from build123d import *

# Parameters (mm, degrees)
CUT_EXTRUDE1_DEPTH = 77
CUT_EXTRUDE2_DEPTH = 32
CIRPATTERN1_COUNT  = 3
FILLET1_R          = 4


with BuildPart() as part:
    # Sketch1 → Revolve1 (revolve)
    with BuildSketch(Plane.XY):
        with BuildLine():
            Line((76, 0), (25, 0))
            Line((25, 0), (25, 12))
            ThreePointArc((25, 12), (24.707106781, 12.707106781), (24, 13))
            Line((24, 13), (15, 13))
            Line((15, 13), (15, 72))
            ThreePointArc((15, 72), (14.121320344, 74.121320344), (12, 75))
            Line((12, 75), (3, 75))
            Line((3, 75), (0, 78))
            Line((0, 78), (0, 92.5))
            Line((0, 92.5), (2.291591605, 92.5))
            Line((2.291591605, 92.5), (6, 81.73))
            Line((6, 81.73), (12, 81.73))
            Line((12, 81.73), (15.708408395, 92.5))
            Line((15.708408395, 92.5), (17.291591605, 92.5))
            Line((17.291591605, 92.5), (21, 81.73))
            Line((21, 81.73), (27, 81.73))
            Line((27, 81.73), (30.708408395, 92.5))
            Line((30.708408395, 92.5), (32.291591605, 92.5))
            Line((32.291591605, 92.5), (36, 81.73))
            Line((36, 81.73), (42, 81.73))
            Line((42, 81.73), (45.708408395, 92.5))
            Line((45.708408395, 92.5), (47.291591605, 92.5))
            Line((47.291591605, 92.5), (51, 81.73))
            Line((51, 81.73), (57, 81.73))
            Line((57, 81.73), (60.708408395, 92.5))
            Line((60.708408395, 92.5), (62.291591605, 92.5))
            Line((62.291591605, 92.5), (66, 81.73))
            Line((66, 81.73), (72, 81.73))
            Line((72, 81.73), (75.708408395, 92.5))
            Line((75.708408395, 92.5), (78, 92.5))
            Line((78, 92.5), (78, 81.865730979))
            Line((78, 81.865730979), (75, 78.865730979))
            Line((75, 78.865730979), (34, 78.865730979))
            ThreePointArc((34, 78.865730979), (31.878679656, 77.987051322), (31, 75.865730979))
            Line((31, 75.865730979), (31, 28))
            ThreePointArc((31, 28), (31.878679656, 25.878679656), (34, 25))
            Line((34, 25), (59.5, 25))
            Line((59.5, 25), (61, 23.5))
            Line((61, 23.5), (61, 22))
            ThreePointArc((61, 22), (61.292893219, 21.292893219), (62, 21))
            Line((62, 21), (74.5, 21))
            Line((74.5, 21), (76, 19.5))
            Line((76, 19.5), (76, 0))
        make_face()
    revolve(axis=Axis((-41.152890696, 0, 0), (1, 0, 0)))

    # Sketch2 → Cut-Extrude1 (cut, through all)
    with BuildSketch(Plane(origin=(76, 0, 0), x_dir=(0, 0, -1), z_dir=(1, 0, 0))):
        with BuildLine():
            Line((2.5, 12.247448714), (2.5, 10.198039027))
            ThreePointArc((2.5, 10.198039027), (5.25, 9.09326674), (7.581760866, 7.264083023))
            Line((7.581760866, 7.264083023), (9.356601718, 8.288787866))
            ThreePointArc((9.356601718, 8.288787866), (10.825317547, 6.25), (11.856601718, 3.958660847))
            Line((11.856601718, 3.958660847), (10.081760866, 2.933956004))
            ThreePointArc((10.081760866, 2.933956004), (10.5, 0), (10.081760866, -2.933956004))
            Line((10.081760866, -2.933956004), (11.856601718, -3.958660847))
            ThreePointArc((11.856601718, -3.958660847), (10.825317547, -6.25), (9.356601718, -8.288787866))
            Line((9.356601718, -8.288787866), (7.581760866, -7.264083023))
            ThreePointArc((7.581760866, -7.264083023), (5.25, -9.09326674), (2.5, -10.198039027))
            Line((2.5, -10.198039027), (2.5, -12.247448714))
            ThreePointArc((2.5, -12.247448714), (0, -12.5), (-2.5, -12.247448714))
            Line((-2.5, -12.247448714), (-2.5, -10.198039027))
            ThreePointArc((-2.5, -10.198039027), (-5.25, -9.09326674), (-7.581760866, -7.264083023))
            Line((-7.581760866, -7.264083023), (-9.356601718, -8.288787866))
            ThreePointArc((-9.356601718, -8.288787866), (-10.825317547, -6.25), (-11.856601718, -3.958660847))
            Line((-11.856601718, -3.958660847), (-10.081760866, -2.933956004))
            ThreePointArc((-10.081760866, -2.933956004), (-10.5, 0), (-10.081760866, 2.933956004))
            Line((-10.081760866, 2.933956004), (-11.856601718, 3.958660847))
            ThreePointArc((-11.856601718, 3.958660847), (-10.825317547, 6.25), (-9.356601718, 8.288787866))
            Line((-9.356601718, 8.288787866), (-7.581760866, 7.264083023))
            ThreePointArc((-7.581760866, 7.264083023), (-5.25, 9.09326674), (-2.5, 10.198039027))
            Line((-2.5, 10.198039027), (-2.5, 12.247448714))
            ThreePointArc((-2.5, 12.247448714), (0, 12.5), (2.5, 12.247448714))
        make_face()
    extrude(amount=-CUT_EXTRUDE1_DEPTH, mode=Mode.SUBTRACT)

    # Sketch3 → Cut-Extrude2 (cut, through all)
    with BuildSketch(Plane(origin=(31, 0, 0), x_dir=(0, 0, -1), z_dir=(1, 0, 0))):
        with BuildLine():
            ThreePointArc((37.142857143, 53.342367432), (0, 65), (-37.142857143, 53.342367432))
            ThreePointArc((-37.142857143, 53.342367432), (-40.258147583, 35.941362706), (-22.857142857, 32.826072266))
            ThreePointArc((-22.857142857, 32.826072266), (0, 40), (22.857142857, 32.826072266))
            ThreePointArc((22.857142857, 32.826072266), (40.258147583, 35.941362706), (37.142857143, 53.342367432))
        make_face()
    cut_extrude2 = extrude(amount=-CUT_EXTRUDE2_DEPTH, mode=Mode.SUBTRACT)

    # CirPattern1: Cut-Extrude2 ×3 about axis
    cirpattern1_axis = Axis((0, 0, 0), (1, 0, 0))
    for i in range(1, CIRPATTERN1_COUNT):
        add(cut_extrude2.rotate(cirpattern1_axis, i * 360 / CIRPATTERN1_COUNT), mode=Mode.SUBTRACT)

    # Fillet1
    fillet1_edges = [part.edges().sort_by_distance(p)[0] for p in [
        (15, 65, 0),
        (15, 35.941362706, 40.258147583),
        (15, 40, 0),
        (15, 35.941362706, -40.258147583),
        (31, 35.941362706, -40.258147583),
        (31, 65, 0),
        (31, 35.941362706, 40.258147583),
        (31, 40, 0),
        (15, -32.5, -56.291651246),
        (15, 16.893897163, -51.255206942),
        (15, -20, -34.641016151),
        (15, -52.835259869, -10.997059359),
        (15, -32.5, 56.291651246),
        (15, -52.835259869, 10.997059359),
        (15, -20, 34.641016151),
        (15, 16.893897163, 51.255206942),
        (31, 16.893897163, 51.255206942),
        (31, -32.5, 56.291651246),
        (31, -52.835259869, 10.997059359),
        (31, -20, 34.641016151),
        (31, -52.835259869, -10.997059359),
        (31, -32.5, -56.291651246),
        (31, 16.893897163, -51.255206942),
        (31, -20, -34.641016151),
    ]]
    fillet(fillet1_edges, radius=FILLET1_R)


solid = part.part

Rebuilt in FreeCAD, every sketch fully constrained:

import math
import FreeCAD as App
import Part
import Sketcher
from FreeCAD import Vector
Q = App.Units.Quantity


def edges_at(feature, points):
    """Names of the edges that pass closest to the given points."""
    edges = feature.Shape.Edges
    near = lambda p: min(range(len(edges)), key=lambda i: edges[i].distToShape(Part.Vertex(*p))[0])
    return sorted({f"Edge{near(p) + 1}" for p in points})

doc = App.newDocument("Part")
body = doc.addObject("PartDesign::Body", "Body")

# Sketch on XY plane
sketch1 = doc.addObject("Sketcher::SketchObject", "Sketch")
body.addObject(sketch1)
sketch1.AttachmentSupport = (doc.XY_Plane, [""])
sketch1.MapMode = "FlatFace"
sketch1.addGeometry(Part.LineSegment(Vector(25, 0, 0), Vector(76, 0, 0)), False)
sketch1.addGeometry(Part.LineSegment(Vector(76, 0, 0), Vector(76, 19.5, 0)), False)
sketch1.addGeometry(Part.LineSegment(Vector(76, 19.5, 0), Vector(74.5, 21, 0)), False)
sketch1.addGeometry(Part.LineSegment(Vector(74.5, 21, 0), Vector(62, 21, 0)), False)
sketch1.addGeometry(Part.ArcOfCircle(Part.Circle(Vector(62, 22, 0), Vector(0, 0, 1), 1), math.radians(-180), math.radians(-90)), False)
sketch1.addGeometry(Part.LineSegment(Vector(61, 22, 0), Vector(61, 23.5, 0)), False)
sketch1.addGeometry(Part.LineSegment(Vector(61, 23.5, 0), Vector(59.5, 25, 0)), False)
sketch1.addGeometry(Part.LineSegment(Vector(59.5, 25, 0), Vector(34, 25, 0)), False)
sketch1.addGeometry(Part.ArcOfCircle(Part.Circle(Vector(34, 28, 0), Vector(0, 0, 1), 3), math.radians(180), math.radians(270)), False)
sketch1.addGeometry(Part.LineSegment(Vector(31, 28, 0), Vector(31, 75.9, 0)), False)
sketch1.addGeometry(Part.ArcOfCircle(Part.Circle(Vector(34, 75.9, 0), Vector(0, 0, 1), 3), math.radians(90), math.radians(180)), False)
sketch1.addGeometry(Part.LineSegment(Vector(34, 78.9, 0), Vector(75, 78.9, 0)), False)
sketch1.addGeometry(Part.LineSegment(Vector(75, 78.9, 0), Vector(78, 81.9, 0)), False)
sketch1.addGeometry(Part.LineSegment(Vector(78, 81.9, 0), Vector(78, 92.5, 0)), False)
sketch1.addGeometry(Part.LineSegment(Vector(78, 92.5, 0), Vector(75.7, 92.5, 0)), False)
sketch1.addGeometry(Part.LineSegment(Vector(75.7, 92.5, 0), Vector(72, 81.7, 0)), False)
sketch1.addGeometry(Part.LineSegment(Vector(72, 81.7, 0), Vector(66, 81.7, 0)), False)
sketch1.addGeometry(Part.LineSegment(Vector(66, 81.7, 0), Vector(62.3, 92.5, 0)), False)
sketch1.addGeometry(Part.LineSegment(Vector(62.3, 92.5, 0), Vector(60.7, 92.5, 0)), False)
sketch1.addGeometry(Part.LineSegment(Vector(60.7, 92.5, 0), Vector(57, 81.7, 0)), False)
sketch1.addGeometry(Part.LineSegment(Vector(57, 81.7, 0), Vector(51, 81.7, 0)), False)
sketch1.addGeometry(Part.LineSegment(Vector(51, 81.7, 0), Vector(47.3, 92.5, 0)), False)
sketch1.addGeometry(Part.LineSegment(Vector(47.3, 92.5, 0), Vector(45.7, 92.5, 0)), False)
sketch1.addGeometry(Part.LineSegment(Vector(45.7, 92.5, 0), Vector(42, 81.7, 0)), False)
sketch1.addGeometry(Part.LineSegment(Vector(42, 81.7, 0), Vector(36, 81.7, 0)), False)
sketch1.addGeometry(Part.LineSegment(Vector(36, 81.7, 0), Vector(32.3, 92.5, 0)), False)
sketch1.addGeometry(Part.LineSegment(Vector(32.3, 92.5, 0), Vector(30.7, 92.5, 0)), False)
sketch1.addGeometry(Part.LineSegment(Vector(30.7, 92.5, 0), Vector(27, 81.7, 0)), False)
sketch1.addGeometry(Part.LineSegment(Vector(27, 81.7, 0), Vector(21, 81.7, 0)), False)
sketch1.addGeometry(Part.LineSegment(Vector(21, 81.7, 0), Vector(17.3, 92.5, 0)), False)
sketch1.addGeometry(Part.LineSegment(Vector(17.3, 92.5, 0), Vector(15.7, 92.5, 0)), False)
sketch1.addGeometry(Part.LineSegment(Vector(15.7, 92.5, 0), Vector(12, 81.7, 0)), False)
sketch1.addGeometry(Part.LineSegment(Vector(12, 81.7, 0), Vector(6, 81.7, 0)), False)
sketch1.addGeometry(Part.LineSegment(Vector(6, 81.7, 0), Vector(2.3, 92.5, 0)), False)
sketch1.addGeometry(Part.LineSegment(Vector(2.3, 92.5, 0), Vector(0, 92.5, 0)), False)
sketch1.addGeometry(Part.LineSegment(Vector(0, 92.5, 0), Vector(0, 78, 0)), False)
sketch1.addGeometry(Part.LineSegment(Vector(0, 78, 0), Vector(3, 75, 0)), False)
sketch1.addGeometry(Part.LineSegment(Vector(3, 75, 0), Vector(12, 75, 0)), False)
sketch1.addGeometry(Part.ArcOfCircle(Part.Circle(Vector(12, 72, 0), Vector(0, 0, 1), 3), math.radians(0), math.radians(90)), False)
sketch1.addGeometry(Part.LineSegment(Vector(15, 72, 0), Vector(15, 13, 0)), False)
sketch1.addGeometry(Part.LineSegment(Vector(15, 13, 0), Vector(24, 13, 0)), False)
sketch1.addGeometry(Part.ArcOfCircle(Part.Circle(Vector(24, 12, 0), Vector(0, 0, 1), 1), math.radians(0), math.radians(90)), False)
sketch1.addGeometry(Part.LineSegment(Vector(25, 12, 0), Vector(25, 0, 0)), False)
sketch1.addConstraint(Sketcher.Constraint("Coincident", 0, 2, 1, 1))
sketch1.addConstraint(Sketcher.Constraint("Coincident", 1, 2, 2, 1))
sketch1.addConstraint(Sketcher.Constraint("Coincident", 2, 2, 3, 1))
sketch1.addConstraint(Sketcher.Constraint("Tangent", 3, 2, 4, 2))
sketch1.addConstraint(Sketcher.Constraint("Tangent", 4, 1, 5, 1))
sketch1.addConstraint(Sketcher.Constraint("Coincident", 5, 2, 6, 1))
sketch1.addConstraint(Sketcher.Constraint("Coincident", 6, 2, 7, 1))
sketch1.addConstraint(Sketcher.Constraint("Tangent", 7, 2, 8, 2))
sketch1.addConstraint(Sketcher.Constraint("Tangent", 8, 1, 9, 1))
sketch1.addConstraint(Sketcher.Constraint("Tangent", 9, 2, 10, 2))
sketch1.addConstraint(Sketcher.Constraint("Tangent", 10, 1, 11, 1))
sketch1.addConstraint(Sketcher.Constraint("Coincident", 11, 2, 12, 1))
sketch1.addConstraint(Sketcher.Constraint("Coincident", 12, 2, 13, 1))
sketch1.addConstraint(Sketcher.Constraint("Coincident", 13, 2, 14, 1))
sketch1.addConstraint(Sketcher.Constraint("Coincident", 14, 2, 15, 1))
sketch1.addConstraint(Sketcher.Constraint("Coincident", 15, 2, 16, 1))
sketch1.addConstraint(Sketcher.Constraint("Coincident", 16, 2, 17, 1))
sketch1.addConstraint(Sketcher.Constraint("Coincident", 17, 2, 18, 1))
sketch1.addConstraint(Sketcher.Constraint("Coincident", 18, 2, 19, 1))
sketch1.addConstraint(Sketcher.Constraint("Coincident", 19, 2, 20, 1))
sketch1.addConstraint(Sketcher.Constraint("Coincident", 20, 2, 21, 1))
sketch1.addConstraint(Sketcher.Constraint("Coincident", 21, 2, 22, 1))
sketch1.addConstraint(Sketcher.Constraint("Coincident", 22, 2, 23, 1))
sketch1.addConstraint(Sketcher.Constraint("Coincident", 23, 2, 24, 1))
sketch1.addConstraint(Sketcher.Constraint("Coincident", 24, 2, 25, 1))
sketch1.addConstraint(Sketcher.Constraint("Coincident", 25, 2, 26, 1))
sketch1.addConstraint(Sketcher.Constraint("Coincident", 26, 2, 27, 1))
sketch1.addConstraint(Sketcher.Constraint("Coincident", 27, 2, 28, 1))
sketch1.addConstraint(Sketcher.Constraint("Coincident", 28, 2, 29, 1))
sketch1.addConstraint(Sketcher.Constraint("Coincident", 29, 2, 30, 1))
sketch1.addConstraint(Sketcher.Constraint("Coincident", 30, 2, 31, 1))
sketch1.addConstraint(Sketcher.Constraint("Coincident", 31, 2, 32, 1))
sketch1.addConstraint(Sketcher.Constraint("Coincident", 32, 2, 33, 1))
sketch1.addConstraint(Sketcher.Constraint("Coincident", 33, 2, 34, 1))
sketch1.addConstraint(Sketcher.Constraint("Coincident", 34, 2, 35, 1))
sketch1.addConstraint(Sketcher.Constraint("Coincident", 35, 2, 36, 1))
sketch1.addConstraint(Sketcher.Constraint("Coincident", 36, 2, 37, 1))
sketch1.addConstraint(Sketcher.Constraint("Tangent", 37, 2, 38, 2))
sketch1.addConstraint(Sketcher.Constraint("Tangent", 38, 1, 39, 1))
sketch1.addConstraint(Sketcher.Constraint("Coincident", 39, 2, 40, 1))
sketch1.addConstraint(Sketcher.Constraint("Tangent", 40, 2, 41, 2))
sketch1.addConstraint(Sketcher.Constraint("Tangent", 41, 1, 42, 1))
sketch1.addConstraint(Sketcher.Constraint("Coincident", 42, 2, 0, 1))
sketch1.addConstraint(Sketcher.Constraint("Horizontal", 0))
sketch1.addConstraint(Sketcher.Constraint("Vertical", 1))
sketch1.addConstraint(Sketcher.Constraint("Horizontal", 3))
sketch1.addConstraint(Sketcher.Constraint("Vertical", 5))
sketch1.addConstraint(Sketcher.Constraint("Horizontal", 7))
sketch1.addConstraint(Sketcher.Constraint("Vertical", 9))
sketch1.addConstraint(Sketcher.Constraint("Horizontal", 11))
sketch1.addConstraint(Sketcher.Constraint("Vertical", 13))
sketch1.addConstraint(Sketcher.Constraint("Horizontal", 14))
sketch1.addConstraint(Sketcher.Constraint("Horizontal", 16))
sketch1.addConstraint(Sketcher.Constraint("Horizontal", 18))
sketch1.addConstraint(Sketcher.Constraint("Horizontal", 20))
sketch1.addConstraint(Sketcher.Constraint("Horizontal", 22))
sketch1.addConstraint(Sketcher.Constraint("Horizontal", 24))
sketch1.addConstraint(Sketcher.Constraint("Horizontal", 26))
sketch1.addConstraint(Sketcher.Constraint("Horizontal", 28))
sketch1.addConstraint(Sketcher.Constraint("Horizontal", 30))
sketch1.addConstraint(Sketcher.Constraint("Horizontal", 32))
sketch1.addConstraint(Sketcher.Constraint("Horizontal", 34))
sketch1.addConstraint(Sketcher.Constraint("Vertical", 35))
sketch1.addConstraint(Sketcher.Constraint("Horizontal", 37))
sketch1.addConstraint(Sketcher.Constraint("Vertical", 39))
sketch1.addConstraint(Sketcher.Constraint("Horizontal", 40))
sketch1.addConstraint(Sketcher.Constraint("Vertical", 42))
sketch1.addConstraint(Sketcher.Constraint("Equal", 8, 10))
sketch1.addConstraint(Sketcher.Constraint("Equal", 10, 38))
sketch1.addConstraint(Sketcher.Constraint("Equal", 4, 41))
sketch1.addConstraint(Sketcher.Constraint("PointOnObject", 0, 2, -1))
sketch1.addConstraint(Sketcher.Constraint("PointOnObject", 34, 2, -2))
sketch1.addConstraint(Sketcher.Constraint("Parallel", 2, 6))
sketch1.addConstraint(Sketcher.Constraint("Perpendicular", 6, 12))
sketch1.addConstraint(Sketcher.Constraint("Parallel", 15, 19))
sketch1.addConstraint(Sketcher.Constraint("Parallel", 17, 21))
sketch1.addConstraint(Sketcher.Constraint("Parallel", 19, 23))
sketch1.addConstraint(Sketcher.Constraint("Parallel", 21, 25))
sketch1.addConstraint(Sketcher.Constraint("Parallel", 23, 27))
sketch1.addConstraint(Sketcher.Constraint("Parallel", 25, 29))
sketch1.addConstraint(Sketcher.Constraint("Parallel", 27, 31))
sketch1.addConstraint(Sketcher.Constraint("Parallel", 29, 33))
sketch1.addConstraint(Sketcher.Constraint("Perpendicular", 12, 36))
sketch1.addConstraint(Sketcher.Constraint("Horizontal", 14, 2, 17, 2))
sketch1.addConstraint(Sketcher.Constraint("Horizontal", 16, 2, 19, 2))
sketch1.addConstraint(Sketcher.Constraint("Horizontal", 18, 2, 21, 2))
sketch1.addConstraint(Sketcher.Constraint("Horizontal", 20, 2, 23, 2))
sketch1.addConstraint(Sketcher.Constraint("Horizontal", 22, 2, 25, 2))
sketch1.addConstraint(Sketcher.Constraint("Horizontal", 24, 2, 27, 2))
sketch1.addConstraint(Sketcher.Constraint("Horizontal", 26, 2, 29, 2))
sketch1.addConstraint(Sketcher.Constraint("Horizontal", 28, 2, 31, 2))
sketch1.addConstraint(Sketcher.Constraint("Horizontal", 30, 2, 33, 2))
sketch1.addConstraint(Sketcher.Constraint("Vertical", 38, 3, 31, 2))
sketch1.addConstraint(Sketcher.Constraint("Equal", 16, 20))
sketch1.addConstraint(Sketcher.Constraint("Equal", 18, 22))
sketch1.addConstraint(Sketcher.Constraint("Equal", 20, 24))
sketch1.addConstraint(Sketcher.Constraint("Equal", 22, 26))
sketch1.addConstraint(Sketcher.Constraint("Equal", 24, 28))
sketch1.addConstraint(Sketcher.Constraint("Equal", 26, 30))
sketch1.addConstraint(Sketcher.Constraint("Equal", 28, 32))
sketch1.addConstraint(Sketcher.Constraint("Equal", 14, 34))
sketch1.addConstraint(Sketcher.Constraint("Equal", 37, 40))
sketch1.addConstraint(Sketcher.Constraint("Equal", 2, 6))
sketch1.addConstraint(Sketcher.Constraint("Equal", 15, 17))
sketch1.addConstraint(Sketcher.Constraint("Equal", 12, 36))
sketch1.addConstraint(Sketcher.Constraint("Radius", 4, 1.0))
sketch1.addConstraint(Sketcher.Constraint("Radius", 8, 3.0))
sketch1.addConstraint(Sketcher.Constraint("DistanceX", 0, 1, 0, 2, 51.0))
sketch1.addConstraint(Sketcher.Constraint("DistanceX", 11, 1, 11, 2, 41.0))
sketch1.addConstraint(Sketcher.Constraint("DistanceX", 16, 2, 16, 1, 6.0))
sketch1.addConstraint(Sketcher.Constraint("DistanceX", 37, 1, 37, 2, 9.0))
sketch1.addConstraint(Sketcher.Constraint("DistanceY", 39, 2, 39, 1, 59.0))
sketch1.addConstraint(Sketcher.Constraint("DistanceY", 42, 2, 42, 1, 12.0))
sketch1.addConstraint(Sketcher.Constraint("Angle", 2, Q("135 deg")))
sketch1.addConstraint(Sketcher.Constraint("Angle", 15, Q("-109 deg")))
sketch1.addConstraint(Sketcher.Constraint("DistanceX", 3, 2, 3, 1, 12.5))
sketch1.addConstraint(Sketcher.Constraint("DistanceX", 7, 2, 7, 1, 25.5))
sketch1.addConstraint(Sketcher.Constraint("DistanceY", 1, 1, 1, 2, 19.5))
sketch1.addConstraint(Sketcher.Constraint("DistanceY", 5, 1, 5, 2, 1.5))
sketch1.addConstraint(Sketcher.Constraint("DistanceY", 35, 2, 35, 1, 14.5))
sketch1.addConstraint(Sketcher.Constraint("DistanceX", -1, 1, 4, 3, 62.0))
sketch1.addConstraint(Sketcher.Constraint("DistanceY", -1, 1, 4, 3, 22.0))
sketch1.addConstraint(Sketcher.Constraint("DistanceY", -1, 1, 15, 2, 81.73))
sketch1.addConstraint(Sketcher.Constraint("DistanceY", 9, 1, 9, 2, 47.865731))
revolution = doc.addObject("PartDesign::Revolution", "Revolution")
body.addObject(revolution)
revolution.Profile = sketch1
revolution.ReferenceAxis = (sketch1, ["H_Axis"])
revolution.Angle = 360

# Sketch on YZ plane
sketch2 = doc.addObject("Sketcher::SketchObject", "Sketch001")
body.addObject(sketch2)
sketch2.AttachmentSupport = (doc.YZ_Plane, [""])
sketch2.MapMode = "FlatFace"
sketch2.AttachmentOffset = App.Placement(Vector(0, 0, 76), App.Rotation())
sketch2.addGeometry(Part.LineSegment(Vector(10.2, -2.5, 0), Vector(12.2, -2.5, 0)), False)
sketch2.addGeometry(Part.ArcOfCircle(Part.Circle(Vector(0, 0, 0), Vector(0, 0, 1), 12.5), math.radians(-12), math.radians(12)), False)
sketch2.addGeometry(Part.LineSegment(Vector(12.2, 2.5, 0), Vector(10.2, 2.5, 0)), False)
sketch2.addGeometry(Part.ArcOfCircle(Part.Circle(Vector(0, 0, 0), Vector(0, 0, 1), 10.5), math.radians(14), math.radians(46)), False)
sketch2.addGeometry(Part.LineSegment(Vector(7.3, 7.6, 0), Vector(8.3, 9.4, 0)), False)
sketch2.addGeometry(Part.ArcOfCircle(Part.Circle(Vector(0, 0, 0), Vector(0, 0, 1), 12.5), math.radians(48), math.radians(72)), False)
sketch2.addGeometry(Part.LineSegment(Vector(4, 11.9, 0), Vector(2.9, 10.1, 0)), False)
sketch2.addGeometry(Part.ArcOfCircle(Part.Circle(Vector(0, 0, 0), Vector(0, 0, 1), 10.5), math.radians(74), math.radians(106)), False)
sketch2.addGeometry(Part.LineSegment(Vector(-2.9, 10.1, 0), Vector(-4, 11.9, 0)), False)
sketch2.addGeometry(Part.ArcOfCircle(Part.Circle(Vector(0, 0, 0), Vector(0, 0, 1), 12.5), math.radians(108), math.radians(132)), False)
sketch2.addGeometry(Part.LineSegment(Vector(-8.3, 9.4, 0), Vector(-7.3, 7.6, 0)), False)
sketch2.addGeometry(Part.ArcOfCircle(Part.Circle(Vector(0, 0, 0), Vector(0, 0, 1), 10.5), math.radians(134), math.radians(166)), False)
sketch2.addGeometry(Part.LineSegment(Vector(-10.2, 2.5, 0), Vector(-12.2, 2.5, 0)), False)
sketch2.addGeometry(Part.ArcOfCircle(Part.Circle(Vector(0, 0, 0), Vector(0, 0, 1), 12.5), math.radians(168), math.radians(192)), False)
sketch2.addGeometry(Part.LineSegment(Vector(-12.2, -2.5, 0), Vector(-10.2, -2.5, 0)), False)
sketch2.addGeometry(Part.ArcOfCircle(Part.Circle(Vector(0, 0, 0), Vector(0, 0, 1), 10.5), math.radians(-166), math.radians(-134)), False)
sketch2.addGeometry(Part.LineSegment(Vector(-7.3, -7.6, 0), Vector(-8.3, -9.4, 0)), False)
sketch2.addGeometry(Part.ArcOfCircle(Part.Circle(Vector(0, 0, 0), Vector(0, 0, 1), 12.5), math.radians(-132), math.radians(-108)), False)
sketch2.addGeometry(Part.LineSegment(Vector(-4, -11.9, 0), Vector(-2.9, -10.1, 0)), False)
sketch2.addGeometry(Part.ArcOfCircle(Part.Circle(Vector(0, 0, 0), Vector(0, 0, 1), 10.5), math.radians(-106), math.radians(-74)), False)
sketch2.addGeometry(Part.LineSegment(Vector(2.9, -10.1, 0), Vector(4, -11.9, 0)), False)
sketch2.addGeometry(Part.ArcOfCircle(Part.Circle(Vector(0, 0, 0), Vector(0, 0, 1), 12.5), math.radians(-72), math.radians(-48)), False)
sketch2.addGeometry(Part.LineSegment(Vector(8.3, -9.4, 0), Vector(7.3, -7.6, 0)), False)
sketch2.addGeometry(Part.ArcOfCircle(Part.Circle(Vector(0, 0, 0), Vector(0, 0, 1), 10.5), math.radians(-46), math.radians(-14)), False)
sketch2.addConstraint(Sketcher.Constraint("Coincident", 0, 2, 1, 1))
sketch2.addConstraint(Sketcher.Constraint("Coincident", 1, 2, 2, 1))
sketch2.addConstraint(Sketcher.Constraint("Coincident", 2, 2, 3, 1))
sketch2.addConstraint(Sketcher.Constraint("Coincident", 3, 2, 4, 1))
sketch2.addConstraint(Sketcher.Constraint("Coincident", 4, 2, 5, 1))
sketch2.addConstraint(Sketcher.Constraint("Coincident", 5, 2, 6, 1))
sketch2.addConstraint(Sketcher.Constraint("Coincident", 6, 2, 7, 1))
sketch2.addConstraint(Sketcher.Constraint("Coincident", 7, 2, 8, 1))
sketch2.addConstraint(Sketcher.Constraint("Coincident", 8, 2, 9, 1))
sketch2.addConstraint(Sketcher.Constraint("Coincident", 9, 2, 10, 1))
sketch2.addConstraint(Sketcher.Constraint("Coincident", 10, 2, 11, 1))
sketch2.addConstraint(Sketcher.Constraint("Coincident", 11, 2, 12, 1))
sketch2.addConstraint(Sketcher.Constraint("Coincident", 12, 2, 13, 1))
sketch2.addConstraint(Sketcher.Constraint("Coincident", 13, 2, 14, 1))
sketch2.addConstraint(Sketcher.Constraint("Coincident", 14, 2, 15, 1))
sketch2.addConstraint(Sketcher.Constraint("Coincident", 15, 2, 16, 1))
sketch2.addConstraint(Sketcher.Constraint("Coincident", 16, 2, 17, 1))
sketch2.addConstraint(Sketcher.Constraint("Coincident", 17, 2, 18, 1))
sketch2.addConstraint(Sketcher.Constraint("Coincident", 18, 2, 19, 1))
sketch2.addConstraint(Sketcher.Constraint("Coincident", 19, 2, 20, 1))
sketch2.addConstraint(Sketcher.Constraint("Coincident", 20, 2, 21, 1))
sketch2.addConstraint(Sketcher.Constraint("Coincident", 21, 2, 22, 1))
sketch2.addConstraint(Sketcher.Constraint("Coincident", 22, 2, 23, 1))
sketch2.addConstraint(Sketcher.Constraint("Coincident", 23, 2, 0, 1))
sketch2.addConstraint(Sketcher.Constraint("Horizontal", 0))
sketch2.addConstraint(Sketcher.Constraint("Horizontal", 2))
sketch2.addConstraint(Sketcher.Constraint("Horizontal", 12))
sketch2.addConstraint(Sketcher.Constraint("Horizontal", 14))
sketch2.addConstraint(Sketcher.Constraint("Coincident", 1, 3, -1, 1))
sketch2.addConstraint(Sketcher.Constraint("Coincident", 3, 3, -1, 1))
sketch2.addConstraint(Sketcher.Constraint("Coincident", 5, 3, -1, 1))
sketch2.addConstraint(Sketcher.Constraint("Coincident", 7, 3, -1, 1))
sketch2.addConstraint(Sketcher.Constraint("Coincident", 9, 3, -1, 1))
sketch2.addConstraint(Sketcher.Constraint("Coincident", 11, 3, -1, 1))
sketch2.addConstraint(Sketcher.Constraint("Coincident", 13, 3, -1, 1))
sketch2.addConstraint(Sketcher.Constraint("Coincident", 15, 3, -1, 1))
sketch2.addConstraint(Sketcher.Constraint("Coincident", 17, 3, -1, 1))
sketch2.addConstraint(Sketcher.Constraint("Coincident", 19, 3, -1, 1))
sketch2.addConstraint(Sketcher.Constraint("Coincident", 21, 3, -1, 1))
sketch2.addConstraint(Sketcher.Constraint("Coincident", 23, 3, -1, 1))
sketch2.addConstraint(Sketcher.Constraint("Equal", 1, 5))
sketch2.addConstraint(Sketcher.Constraint("Equal", 3, 7))
sketch2.addConstraint(Sketcher.Constraint("Equal", 5, 9))
sketch2.addConstraint(Sketcher.Constraint("Equal", 7, 11))
sketch2.addConstraint(Sketcher.Constraint("Equal", 9, 13))
sketch2.addConstraint(Sketcher.Constraint("Equal", 11, 15))
sketch2.addConstraint(Sketcher.Constraint("Equal", 13, 17))
sketch2.addConstraint(Sketcher.Constraint("Equal", 15, 19))
sketch2.addConstraint(Sketcher.Constraint("Equal", 17, 21))
sketch2.addConstraint(Sketcher.Constraint("Equal", 19, 23))
sketch2.addConstraint(Sketcher.Constraint("Parallel", 4, 6))
sketch2.addConstraint(Sketcher.Constraint("Parallel", 8, 10))
sketch2.addConstraint(Sketcher.Constraint("Parallel", 6, 16))
sketch2.addConstraint(Sketcher.Constraint("Parallel", 16, 18))
sketch2.addConstraint(Sketcher.Constraint("Parallel", 10, 20))
sketch2.addConstraint(Sketcher.Constraint("Parallel", 20, 22))
sketch2.addConstraint(Sketcher.Constraint("Horizontal", 6, 2, 7, 2))
sketch2.addConstraint(Sketcher.Constraint("Horizontal", 5, 2, 8, 2))
sketch2.addConstraint(Sketcher.Constraint("Horizontal", 4, 2, 9, 2))
sketch2.addConstraint(Sketcher.Constraint("Horizontal", 2, 2, 11, 2))
sketch2.addConstraint(Sketcher.Constraint("Horizontal", 0, 2, 13, 2))
sketch2.addConstraint(Sketcher.Constraint("Horizontal", 18, 2, 19, 2))
sketch2.addConstraint(Sketcher.Constraint("Horizontal", 16, 2, 21, 2))
sketch2.addConstraint(Sketcher.Constraint("Vertical", 0, 2, 1, 2))
sketch2.addConstraint(Sketcher.Constraint("Vertical", 10, 2, 15, 2))
sketch2.addConstraint(Sketcher.Constraint("Vertical", 8, 2, 17, 2))
sketch2.addConstraint(Sketcher.Constraint("Equal", 4, 6))
sketch2.addConstraint(Sketcher.Constraint("Radius", 1, 12.5))
sketch2.addConstraint(Sketcher.Constraint("Radius", 3, 10.5))
sketch2.addConstraint(Sketcher.Constraint("Angle", 4, Q("60 deg")))
sketch2.addConstraint(Sketcher.Constraint("DistanceY", 0, 2, 1, 2, 5.0))
sketch2.addConstraint(Sketcher.Constraint("DistanceY", 4, 2, 5, 2, 2.5))
pocket1 = doc.addObject("PartDesign::Pocket", "Pocket")
body.addObject(pocket1)
pocket1.Profile = sketch2
pocket1.Type = "ThroughAll"

# Sketch on YZ plane
sketch3 = doc.addObject("Sketcher::SketchObject", "Sketch002")
body.addObject(sketch3)
sketch3.AttachmentSupport = (doc.YZ_Plane, [""])
sketch3.MapMode = "FlatFace"
sketch3.AttachmentOffset = App.Placement(Vector(0, 0, 31), App.Rotation())
sketch3.addGeometry(Part.ArcOfCircle(Part.Circle(Vector(0, 0, 0), Vector(0, 0, 1), 65), math.radians(-35), math.radians(35)), False)
sketch3.addGeometry(Part.ArcOfCircle(Part.Circle(Vector(43, 30, 0), Vector(0, 0, 1), 12), math.radians(35), math.radians(215)), False)
sketch3.addGeometry(Part.ArcOfCircle(Part.Circle(Vector(0, 0, 0), Vector(0, 0, 1), 40), math.radians(-35), math.radians(35)), False)
sketch3.addGeometry(Part.ArcOfCircle(Part.Circle(Vector(43, -30, 0), Vector(0, 0, 1), 12), math.radians(145), math.radians(325)), False)
sketch3.addConstraint(Sketcher.Constraint("Tangent", 0, 2, 1, 1))
sketch3.addConstraint(Sketcher.Constraint("Tangent", 1, 2, 2, 2))
sketch3.addConstraint(Sketcher.Constraint("Tangent", 2, 1, 3, 1))
sketch3.addConstraint(Sketcher.Constraint("Tangent", 3, 2, 0, 1))
sketch3.addConstraint(Sketcher.Constraint("Coincident", 0, 3, -1, 1))
sketch3.addConstraint(Sketcher.Constraint("Coincident", 2, 3, -1, 1))
sketch3.addConstraint(Sketcher.Constraint("Vertical", 1, 3, 3, 3))
sketch3.addConstraint(Sketcher.Constraint("Radius", 0, 65.0))
sketch3.addConstraint(Sketcher.Constraint("Radius", 2, 40.0))
sketch3.addConstraint(Sketcher.Constraint("DistanceY", -1, 1, 1, 3, 30.0))
pocket2 = doc.addObject("PartDesign::Pocket", "Pocket001")
body.addObject(pocket2)
pocket2.Profile = sketch3
pocket2.Type = "ThroughAll"
doc.recompute()

polarpattern = doc.addObject("PartDesign::PolarPattern", "PolarPattern")
body.addObject(polarpattern)
polarpattern.Originals = [pocket2]
polarpattern.Axis = (doc.X_Axis, [""])
polarpattern.Angle = 360
polarpattern.Occurrences = 3
body.Tip = polarpattern
doc.recompute()

fillet = doc.addObject("PartDesign::Fillet", "Fillet")
body.addObject(fillet)
fillet.Base = (polarpattern, edges_at(polarpattern, [
    (15, 65, 0),
    (15, 35.941, 40.258),
    (15, 40, 0),
    (15, 35.941, -40.258),
    (31, 35.941, -40.258),
    (31, 65, 0),
    (31, 35.941, 40.258),
    (31, 40, 0),
    (15, -32.5, -56.292),
    (15, 16.894, -51.255),
    (15, -20, -34.641),
    (15, -52.835, -10.997),
    (15, -32.5, 56.292),
    (15, -52.835, 10.997),
    (15, -20, 34.641),
    (15, 16.894, 51.255),
    (31, 16.894, 51.255),
    (31, -32.5, 56.292),
    (31, -52.835, 10.997),
    (31, -20, 34.641),
    (31, -52.835, -10.997),
    (31, -32.5, -56.292),
    (31, 16.894, -51.255),
    (31, -20, -34.641),
]))
fillet.Radius = 4

doc.recompute()
